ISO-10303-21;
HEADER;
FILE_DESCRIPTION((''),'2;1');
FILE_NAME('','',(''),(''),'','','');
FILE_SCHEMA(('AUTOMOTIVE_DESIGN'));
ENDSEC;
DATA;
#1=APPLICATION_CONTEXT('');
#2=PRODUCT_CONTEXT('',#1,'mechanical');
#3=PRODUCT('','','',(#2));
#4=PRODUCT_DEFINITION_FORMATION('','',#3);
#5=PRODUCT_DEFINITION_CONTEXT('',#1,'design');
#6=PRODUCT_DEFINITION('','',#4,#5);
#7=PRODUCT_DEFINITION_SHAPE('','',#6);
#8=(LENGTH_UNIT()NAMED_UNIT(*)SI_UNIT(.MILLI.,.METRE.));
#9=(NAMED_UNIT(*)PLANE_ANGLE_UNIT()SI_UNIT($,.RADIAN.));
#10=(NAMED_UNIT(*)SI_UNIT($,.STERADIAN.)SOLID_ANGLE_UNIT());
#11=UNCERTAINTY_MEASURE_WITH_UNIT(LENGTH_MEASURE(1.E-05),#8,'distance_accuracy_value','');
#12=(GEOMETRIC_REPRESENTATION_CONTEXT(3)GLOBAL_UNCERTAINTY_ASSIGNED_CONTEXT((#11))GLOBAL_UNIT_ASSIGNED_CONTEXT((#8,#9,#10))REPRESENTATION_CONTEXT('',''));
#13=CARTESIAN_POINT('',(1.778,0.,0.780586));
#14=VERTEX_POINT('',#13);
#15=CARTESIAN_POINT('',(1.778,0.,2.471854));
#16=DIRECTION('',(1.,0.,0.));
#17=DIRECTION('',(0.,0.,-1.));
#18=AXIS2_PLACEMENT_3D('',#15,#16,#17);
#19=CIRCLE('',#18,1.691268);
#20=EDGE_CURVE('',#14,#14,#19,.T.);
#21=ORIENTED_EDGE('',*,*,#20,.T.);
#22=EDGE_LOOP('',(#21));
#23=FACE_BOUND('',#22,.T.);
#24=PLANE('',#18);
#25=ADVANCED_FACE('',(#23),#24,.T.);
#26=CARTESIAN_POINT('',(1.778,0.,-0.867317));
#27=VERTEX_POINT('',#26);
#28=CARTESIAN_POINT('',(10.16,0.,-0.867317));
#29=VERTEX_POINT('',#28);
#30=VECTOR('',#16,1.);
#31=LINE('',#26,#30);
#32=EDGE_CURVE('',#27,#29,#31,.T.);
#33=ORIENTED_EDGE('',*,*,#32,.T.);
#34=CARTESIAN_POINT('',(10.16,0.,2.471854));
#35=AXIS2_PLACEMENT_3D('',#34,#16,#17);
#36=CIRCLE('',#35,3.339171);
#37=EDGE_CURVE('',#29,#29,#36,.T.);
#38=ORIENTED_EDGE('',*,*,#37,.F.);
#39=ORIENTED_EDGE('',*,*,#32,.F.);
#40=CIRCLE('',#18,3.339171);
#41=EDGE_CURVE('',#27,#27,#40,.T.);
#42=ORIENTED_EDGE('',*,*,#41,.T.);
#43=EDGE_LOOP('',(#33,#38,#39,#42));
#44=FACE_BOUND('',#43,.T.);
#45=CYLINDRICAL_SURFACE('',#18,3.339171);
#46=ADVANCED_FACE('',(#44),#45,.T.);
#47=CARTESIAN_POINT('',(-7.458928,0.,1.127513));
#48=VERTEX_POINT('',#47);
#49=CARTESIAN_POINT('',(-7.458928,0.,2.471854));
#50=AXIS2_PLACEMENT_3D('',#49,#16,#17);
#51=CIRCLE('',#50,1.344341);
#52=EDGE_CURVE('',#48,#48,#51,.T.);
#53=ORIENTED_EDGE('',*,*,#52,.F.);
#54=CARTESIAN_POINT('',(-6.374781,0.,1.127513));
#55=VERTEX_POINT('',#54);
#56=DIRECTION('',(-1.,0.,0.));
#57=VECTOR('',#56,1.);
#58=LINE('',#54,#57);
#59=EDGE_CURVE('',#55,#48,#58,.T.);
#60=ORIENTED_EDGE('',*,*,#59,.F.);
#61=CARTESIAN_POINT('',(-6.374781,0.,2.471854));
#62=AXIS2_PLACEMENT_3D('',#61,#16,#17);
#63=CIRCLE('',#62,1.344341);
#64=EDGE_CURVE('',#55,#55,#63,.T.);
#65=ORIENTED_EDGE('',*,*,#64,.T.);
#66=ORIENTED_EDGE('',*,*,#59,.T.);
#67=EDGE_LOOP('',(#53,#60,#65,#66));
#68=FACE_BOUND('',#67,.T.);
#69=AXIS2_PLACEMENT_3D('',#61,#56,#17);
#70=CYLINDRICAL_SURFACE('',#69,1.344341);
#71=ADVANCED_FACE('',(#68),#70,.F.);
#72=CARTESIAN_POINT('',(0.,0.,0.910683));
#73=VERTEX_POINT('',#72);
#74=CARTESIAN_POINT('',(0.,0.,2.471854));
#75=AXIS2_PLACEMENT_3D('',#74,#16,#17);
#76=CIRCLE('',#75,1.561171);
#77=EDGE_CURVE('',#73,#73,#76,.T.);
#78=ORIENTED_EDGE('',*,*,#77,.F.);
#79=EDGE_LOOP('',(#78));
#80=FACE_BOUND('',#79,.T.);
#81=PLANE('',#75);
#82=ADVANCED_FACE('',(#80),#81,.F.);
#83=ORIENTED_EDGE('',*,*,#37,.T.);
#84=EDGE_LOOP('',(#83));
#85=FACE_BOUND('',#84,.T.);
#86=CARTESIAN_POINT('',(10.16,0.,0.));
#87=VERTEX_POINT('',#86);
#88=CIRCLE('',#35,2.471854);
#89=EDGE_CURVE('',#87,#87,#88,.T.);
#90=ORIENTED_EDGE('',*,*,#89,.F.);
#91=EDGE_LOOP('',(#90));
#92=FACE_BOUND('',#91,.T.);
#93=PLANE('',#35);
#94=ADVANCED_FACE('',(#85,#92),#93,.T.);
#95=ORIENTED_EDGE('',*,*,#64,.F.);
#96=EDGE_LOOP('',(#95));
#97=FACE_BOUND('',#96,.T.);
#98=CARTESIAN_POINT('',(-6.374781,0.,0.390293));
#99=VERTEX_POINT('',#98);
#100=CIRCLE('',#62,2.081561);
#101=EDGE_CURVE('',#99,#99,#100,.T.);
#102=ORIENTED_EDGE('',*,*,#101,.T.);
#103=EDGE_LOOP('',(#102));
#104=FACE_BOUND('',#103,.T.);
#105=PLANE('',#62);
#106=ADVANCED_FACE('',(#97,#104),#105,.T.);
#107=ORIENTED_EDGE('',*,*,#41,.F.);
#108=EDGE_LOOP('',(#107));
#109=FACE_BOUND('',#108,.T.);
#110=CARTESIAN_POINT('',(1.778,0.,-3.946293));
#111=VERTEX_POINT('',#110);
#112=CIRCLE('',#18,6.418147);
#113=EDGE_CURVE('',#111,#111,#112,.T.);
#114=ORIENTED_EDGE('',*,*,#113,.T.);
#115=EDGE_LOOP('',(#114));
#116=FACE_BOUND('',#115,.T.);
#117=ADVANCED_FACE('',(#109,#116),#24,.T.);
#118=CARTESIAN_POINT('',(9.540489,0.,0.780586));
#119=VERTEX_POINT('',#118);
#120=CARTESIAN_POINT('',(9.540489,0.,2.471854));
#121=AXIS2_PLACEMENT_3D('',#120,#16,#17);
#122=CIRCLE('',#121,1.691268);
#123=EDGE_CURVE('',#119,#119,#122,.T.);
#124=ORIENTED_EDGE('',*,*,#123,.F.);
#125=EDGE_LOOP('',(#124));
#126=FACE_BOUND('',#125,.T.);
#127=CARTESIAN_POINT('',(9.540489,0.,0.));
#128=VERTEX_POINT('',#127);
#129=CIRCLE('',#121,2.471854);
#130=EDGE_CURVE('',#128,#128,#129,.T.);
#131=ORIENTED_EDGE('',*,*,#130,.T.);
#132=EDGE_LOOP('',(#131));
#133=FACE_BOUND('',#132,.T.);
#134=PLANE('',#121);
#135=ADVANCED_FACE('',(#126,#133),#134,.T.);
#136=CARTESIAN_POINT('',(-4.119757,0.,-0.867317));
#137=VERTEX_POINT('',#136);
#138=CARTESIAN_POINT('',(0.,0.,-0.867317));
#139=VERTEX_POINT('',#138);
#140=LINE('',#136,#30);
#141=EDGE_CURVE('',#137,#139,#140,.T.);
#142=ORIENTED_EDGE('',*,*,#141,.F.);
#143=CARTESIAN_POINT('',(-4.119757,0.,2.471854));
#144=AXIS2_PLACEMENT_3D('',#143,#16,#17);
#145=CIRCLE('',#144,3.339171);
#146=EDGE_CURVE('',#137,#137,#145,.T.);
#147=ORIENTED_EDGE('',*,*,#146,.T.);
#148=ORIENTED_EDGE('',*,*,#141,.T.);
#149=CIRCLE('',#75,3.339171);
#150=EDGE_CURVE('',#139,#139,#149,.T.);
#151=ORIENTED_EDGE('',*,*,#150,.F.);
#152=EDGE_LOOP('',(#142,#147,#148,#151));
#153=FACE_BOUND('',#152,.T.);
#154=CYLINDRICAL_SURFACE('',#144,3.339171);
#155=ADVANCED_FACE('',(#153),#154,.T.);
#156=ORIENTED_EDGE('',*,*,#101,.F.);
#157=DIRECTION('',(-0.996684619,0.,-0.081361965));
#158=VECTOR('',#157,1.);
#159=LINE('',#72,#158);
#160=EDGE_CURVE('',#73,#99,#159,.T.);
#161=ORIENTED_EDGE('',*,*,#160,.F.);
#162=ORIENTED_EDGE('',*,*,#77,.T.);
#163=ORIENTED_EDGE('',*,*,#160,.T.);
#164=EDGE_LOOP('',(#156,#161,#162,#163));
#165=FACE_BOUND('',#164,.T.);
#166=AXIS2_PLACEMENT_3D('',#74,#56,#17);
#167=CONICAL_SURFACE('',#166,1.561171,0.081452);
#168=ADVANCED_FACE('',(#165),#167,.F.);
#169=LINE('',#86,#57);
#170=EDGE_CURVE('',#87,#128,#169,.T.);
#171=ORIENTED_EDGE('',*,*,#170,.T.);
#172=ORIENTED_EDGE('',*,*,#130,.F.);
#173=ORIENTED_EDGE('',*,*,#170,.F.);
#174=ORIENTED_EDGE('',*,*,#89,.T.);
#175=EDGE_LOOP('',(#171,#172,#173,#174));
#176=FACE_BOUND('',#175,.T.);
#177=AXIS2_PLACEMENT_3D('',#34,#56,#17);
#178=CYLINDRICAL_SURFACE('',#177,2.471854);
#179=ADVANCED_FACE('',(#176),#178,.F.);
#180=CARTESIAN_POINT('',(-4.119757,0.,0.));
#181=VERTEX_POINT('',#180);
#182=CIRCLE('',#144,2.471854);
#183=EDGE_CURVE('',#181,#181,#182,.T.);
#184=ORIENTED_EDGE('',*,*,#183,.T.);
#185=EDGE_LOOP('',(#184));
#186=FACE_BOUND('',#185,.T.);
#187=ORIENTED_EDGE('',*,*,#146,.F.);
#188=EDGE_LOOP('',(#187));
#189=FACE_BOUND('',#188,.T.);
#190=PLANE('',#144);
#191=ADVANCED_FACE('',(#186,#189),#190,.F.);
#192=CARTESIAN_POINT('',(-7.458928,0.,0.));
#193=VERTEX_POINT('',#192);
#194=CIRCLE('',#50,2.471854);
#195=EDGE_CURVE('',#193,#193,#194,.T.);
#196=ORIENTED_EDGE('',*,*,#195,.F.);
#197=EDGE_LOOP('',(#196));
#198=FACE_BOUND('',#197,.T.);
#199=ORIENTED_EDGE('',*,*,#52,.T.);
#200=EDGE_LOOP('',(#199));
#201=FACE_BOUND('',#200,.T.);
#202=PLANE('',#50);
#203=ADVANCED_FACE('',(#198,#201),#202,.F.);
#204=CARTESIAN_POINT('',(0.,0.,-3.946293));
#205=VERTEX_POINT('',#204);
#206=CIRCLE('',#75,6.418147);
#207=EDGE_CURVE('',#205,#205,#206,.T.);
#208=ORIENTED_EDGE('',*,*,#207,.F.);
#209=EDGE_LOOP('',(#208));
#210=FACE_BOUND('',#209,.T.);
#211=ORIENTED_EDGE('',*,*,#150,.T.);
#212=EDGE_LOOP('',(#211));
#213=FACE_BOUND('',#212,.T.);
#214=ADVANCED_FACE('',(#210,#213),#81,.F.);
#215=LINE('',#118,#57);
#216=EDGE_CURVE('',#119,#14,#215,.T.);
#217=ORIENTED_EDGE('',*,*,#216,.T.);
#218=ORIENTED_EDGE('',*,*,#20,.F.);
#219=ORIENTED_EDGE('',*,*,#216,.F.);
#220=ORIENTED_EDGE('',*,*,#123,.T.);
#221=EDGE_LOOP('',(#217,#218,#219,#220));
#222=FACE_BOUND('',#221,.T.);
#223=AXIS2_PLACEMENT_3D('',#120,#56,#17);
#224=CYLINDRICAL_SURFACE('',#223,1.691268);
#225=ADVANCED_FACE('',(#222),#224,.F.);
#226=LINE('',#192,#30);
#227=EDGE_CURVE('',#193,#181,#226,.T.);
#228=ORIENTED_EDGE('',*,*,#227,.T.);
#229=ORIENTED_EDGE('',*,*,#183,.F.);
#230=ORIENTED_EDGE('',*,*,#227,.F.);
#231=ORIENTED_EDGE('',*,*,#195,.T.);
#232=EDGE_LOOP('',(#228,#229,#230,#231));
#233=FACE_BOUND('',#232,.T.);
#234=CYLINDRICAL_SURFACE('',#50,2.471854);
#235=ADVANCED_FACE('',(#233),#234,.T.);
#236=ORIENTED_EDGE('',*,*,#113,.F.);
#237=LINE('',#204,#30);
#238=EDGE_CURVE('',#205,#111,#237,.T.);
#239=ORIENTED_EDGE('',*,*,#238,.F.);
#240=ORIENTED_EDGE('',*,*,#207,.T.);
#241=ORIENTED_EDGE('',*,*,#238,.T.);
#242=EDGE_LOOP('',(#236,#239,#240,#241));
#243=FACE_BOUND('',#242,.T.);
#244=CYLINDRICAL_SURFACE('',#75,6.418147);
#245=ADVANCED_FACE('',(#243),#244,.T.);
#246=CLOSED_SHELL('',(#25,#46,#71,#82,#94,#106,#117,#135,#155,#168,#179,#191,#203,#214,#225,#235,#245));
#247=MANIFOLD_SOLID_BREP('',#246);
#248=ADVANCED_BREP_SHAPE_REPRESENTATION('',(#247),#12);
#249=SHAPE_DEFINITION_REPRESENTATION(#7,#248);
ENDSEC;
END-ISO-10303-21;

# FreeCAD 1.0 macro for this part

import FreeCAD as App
import Part
import Sketcher
Q = App.Units.Quantity

doc = App.newDocument("Part")
params = doc.addObject("Spreadsheet::Sheet", "Params")
for row, (alias, value) in enumerate([
    ("sketch1_width", "0.07 in"),
    ("sketch1_width2", "0.33 in"),
    ("revolution_angle", "360 deg"),
], start=1):
    params.set(f"A{row}", alias)
    params.set(f"B{row}", "=" + value)
    params.setAlias(f"B{row}", alias)

body = doc.addObject("PartDesign::Body", "Body")

# Sketch on XZ plane
sketch1 = body.newObject("Sketcher::SketchObject", "Sketch")
sketch1.AttachmentSupport = (doc.getObject("XZ_Plane"), [""])
sketch1.MapMode = "FlatFace"
sketch1.addGeometry([
    Part.LineSegment(App.Vector(0, 2.5, 0), App.Vector(0, 0.9, 0)),  # 0
    Part.LineSegment(App.Vector(0, 0.9, 0), App.Vector(-6.4, 0.4, 0)),  # 1
    Part.LineSegment(App.Vector(-6.4, 0.4, 0), App.Vector(-6.4, 1.1, 0)),  # 2
    Part.LineSegment(App.Vector(-6.4, 1.1, 0), App.Vector(-7.5, 1.1, 0)),  # 3
    Part.LineSegment(App.Vector(-7.5, 1.1, 0), App.Vector(-7.5, 0, 0)),  # 4
    Part.LineSegment(App.Vector(-7.5, 0, 0), App.Vector(-4.1, 0, 0)),  # 5
    Part.LineSegment(App.Vector(-4.1, 0, 0), App.Vector(-4.1, -0.9, 0)),  # 6
    Part.LineSegment(App.Vector(-4.1, -0.9, 0), App.Vector(0, -0.9, 0)),  # 7
    Part.LineSegment(App.Vector(0, -0.9, 0), App.Vector(0, -3.9, 0)),  # 8
    Part.LineSegment(App.Vector(0, -3.9, 0), App.Vector(1.8, -3.9, 0)),  # 9
    Part.LineSegment(App.Vector(1.8, -3.9, 0), App.Vector(1.8, -0.9, 0)),  # 10
    Part.LineSegment(App.Vector(1.8, -0.9, 0), App.Vector(10.2, -0.9, 0)),  # 11
    Part.LineSegment(App.Vector(10.2, -0.9, 0), App.Vector(10.2, 0, 0)),  # 12
    Part.LineSegment(App.Vector(10.2, 0, 0), App.Vector(9.5, 0, 0)),  # 13
    Part.LineSegment(App.Vector(9.5, 0, 0), App.Vector(9.5, 0.8, 0)),  # 14
    Part.LineSegment(App.Vector(9.5, 0.8, 0), App.Vector(1.8, 0.8, 0)),  # 15
    Part.LineSegment(App.Vector(1.8, 0.8, 0), App.Vector(1.8, 2.5, 0)),  # 16
    Part.LineSegment(App.Vector(1.8, 2.5, 0), App.Vector(0, 2.5, 0)),  # 17
], False)
sketch1.addGeometry(Part.LineSegment(App.Vector(-7.5, 2.5, 0), App.Vector(10.2, 2.5, 0)), True)  # axis
sketch1.addConstraint([
    Sketcher.Constraint("Coincident", 0, 2, 1, 1),
    Sketcher.Constraint("Coincident", 1, 2, 2, 1),
    Sketcher.Constraint("Coincident", 2, 2, 3, 1),
    Sketcher.Constraint("Coincident", 3, 2, 4, 1),
    Sketcher.Constraint("Coincident", 4, 2, 5, 1),
    Sketcher.Constraint("Coincident", 5, 2, 6, 1),
    Sketcher.Constraint("Coincident", 6, 2, 7, 1),
    Sketcher.Constraint("Coincident", 7, 2, 8, 1),
    Sketcher.Constraint("Coincident", 8, 2, 9, 1),
    Sketcher.Constraint("Coincident", 9, 2, 10, 1),
    Sketcher.Constraint("Coincident", 10, 2, 11, 1),
    Sketcher.Constraint("Coincident", 11, 2, 12, 1),
    Sketcher.Constraint("Coincident", 12, 2, 13, 1),
    Sketcher.Constraint("Coincident", 13, 2, 14, 1),
    Sketcher.Constraint("Coincident", 14, 2, 15, 1),
    Sketcher.Constraint("Coincident", 15, 2, 16, 1),
    Sketcher.Constraint("Coincident", 16, 2, 17, 1),
    Sketcher.Constraint("Coincident", 17, 2, 0, 1),
    Sketcher.Constraint("Vertical", 0),
    Sketcher.Constraint("Vertical", 2),
    Sketcher.Constraint("Horizontal", 3),
    Sketcher.Constraint("Vertical", 4),
    Sketcher.Constraint("Horizontal", 5),
    Sketcher.Constraint("Vertical", 6),
    Sketcher.Constraint("Horizontal", 7),
    Sketcher.Constraint("Vertical", 8),
    Sketcher.Constraint("Horizontal", 9),
    Sketcher.Constraint("Vertical", 10),
    Sketcher.Constraint("Horizontal", 11),
    Sketcher.Constraint("Vertical", 12),
    Sketcher.Constraint("Horizontal", 13),
    Sketcher.Constraint("Vertical", 14),
    Sketcher.Constraint("Horizontal", 15),
    Sketcher.Constraint("Vertical", 16),
    Sketcher.Constraint("Horizontal", 17),
    Sketcher.Constraint("Horizontal", 18),
    Sketcher.Constraint("PointOnObject", 0, 2, -2),
    Sketcher.Constraint("PointOnObject", 4, 2, -1),
    Sketcher.Constraint("PointOnObject", 7, 2, -2),
    Sketcher.Constraint("PointOnObject", 12, 2, -1),
    Sketcher.Constraint("Horizontal", 7, 2, 10, 2),
    Sketcher.Constraint("Horizontal", 17, 2, 18, 1),
    Sketcher.Constraint("Vertical", 10, 2, 15, 2),
    Sketcher.Constraint("Vertical", 4, 2, 18, 1),
    Sketcher.Constraint("Vertical", 12, 2, 18, 2),
    Sketcher.Constraint("DistanceX", 9, 1, 9, 2, Q("0.07 in")),
    Sketcher.Constraint("DistanceX", 11, 1, 11, 2, Q("0.33 in")),
    Sketcher.Constraint("DistanceY", 7, 2, 0, 2, Q("0.07 in")),
    Sketcher.Constraint("DistanceX", 5, 1, 5, 2, 3.339171),
    Sketcher.Constraint("DistanceX", 13, 2, 13, 1, 0.619511),
    Sketcher.Constraint("DistanceX", 18, 1, 18, 2, 17.618928),
    Sketcher.Constraint("DistanceY", 0, 2, 0, 1, 1.561171),
    Sketcher.Constraint("DistanceY", 2, 1, 2, 2, 0.73722),
    Sketcher.Constraint("DistanceX", 3, 2, 3, 1, 1.084147),
    Sketcher.Constraint("DistanceY", 4, 2, 4, 1, 1.127513),
    Sketcher.Constraint("DistanceY", 6, 2, 6, 1, 0.867317),
    Sketcher.Constraint("DistanceY", 8, 2, 8, 1, 3.078976),
    Sketcher.Constraint("DistanceY", 14, 1, 14, 2, 0.780586),
])
sketch1.setExpression("Constraints[45]", "Params.sketch1_width")
sketch1.setExpression("Constraints[46]", "Params.sketch1_width2")
revolution = body.newObject("PartDesign::Revolution", "Revolution")
revolution.Profile = sketch1
revolution.ReferenceAxis = (sketch1, ["Axis0"])
revolution.setExpression("Angle", "Params.revolution_angle")

doc.recompute()
